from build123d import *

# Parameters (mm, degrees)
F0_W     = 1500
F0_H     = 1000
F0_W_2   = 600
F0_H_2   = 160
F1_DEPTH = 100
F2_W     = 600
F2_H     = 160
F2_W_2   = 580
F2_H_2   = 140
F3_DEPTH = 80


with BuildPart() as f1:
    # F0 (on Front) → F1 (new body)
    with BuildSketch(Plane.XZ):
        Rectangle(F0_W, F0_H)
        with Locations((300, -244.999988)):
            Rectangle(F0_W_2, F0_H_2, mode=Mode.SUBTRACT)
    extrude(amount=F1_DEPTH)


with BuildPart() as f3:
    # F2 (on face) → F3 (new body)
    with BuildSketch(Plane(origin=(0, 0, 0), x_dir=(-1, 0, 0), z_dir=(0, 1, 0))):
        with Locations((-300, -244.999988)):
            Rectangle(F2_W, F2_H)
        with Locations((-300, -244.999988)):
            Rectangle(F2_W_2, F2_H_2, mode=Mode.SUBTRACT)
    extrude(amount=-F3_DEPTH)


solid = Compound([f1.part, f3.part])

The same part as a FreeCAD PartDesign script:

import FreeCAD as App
import Part
import Sketcher
from FreeCAD import Vector
Q = App.Units.Quantity


def add_polygon(sketch, points):
    """Adds a closed chain of lines whose ends are joined by coincident constraints."""
    first, n = sketch.GeometryCount, len(points)
    for a, b in zip(points, points[1:] + points[:1]):
        sketch.addGeometry(Part.LineSegment(App.Vector(*a, 0), App.Vector(*b, 0)), False)
    for i in range(n):
        sketch.addConstraint(Sketcher.Constraint("Coincident", first + i, 2, first + (i + 1) % n, 1))

doc = App.newDocument("Part")
body = doc.addObject("PartDesign::Body", "Body")

sketch1 = doc.addObject("Sketcher::SketchObject", "Sketch")
body.addObject(sketch1)
sketch1.AttachmentSupport = (doc.XZ_Plane, [""])
sketch1.MapMode = "FlatFace"
add_polygon(sketch1, [(-750, 500), (-750, -500), (750, -500), (750, 500)])
add_polygon(sketch1, [(600, -325), (0, -325), (0, -165), (600, -165)])
sketch1.addConstraint([
    Sketcher.Constraint("Vertical", 0),
    Sketcher.Constraint("Horizontal", 1),
    Sketcher.Constraint("Vertical", 2),
    Sketcher.Constraint("Horizontal", 3),
    Sketcher.Constraint("Horizontal", 4),
    Sketcher.Constraint("Vertical", 5),
    Sketcher.Constraint("Horizontal", 6),
    Sketcher.Constraint("Vertical", 7),
    Sketcher.Constraint("Symmetric", 0, 2, 2, 2, -1, 1),
    Sketcher.Constraint("PointOnObject", 4, 2, -2),
    Sketcher.Constraint("DistanceX", 1, 1, 1, 2, Q("1500 mm")),
    Sketcher.Constraint("DistanceX", 4, 2, 4, 1, Q("600 mm")),
    Sketcher.Constraint("DistanceY", 0, 2, 0, 1, Q("1000 mm")),
    Sketcher.Constraint("DistanceY", 5, 1, 5, 2, Q("160 mm")),
    Sketcher.Constraint("DistanceY", 5, 2, -1, 1, Q("164.999988 mm")),
])
pad1 = doc.addObject("PartDesign::Pad", "Pad")
body.addObject(pad1)
pad1.Profile = sketch1
pad1.Length = 100
body2 = doc.addObject("PartDesign::Body", "Body001")

sketch2 = doc.addObject("Sketcher::SketchObject", "Sketch001")
body2.addObject(sketch2)
sketch2.AttachmentSupport = (doc.getObject("XZ_Plane001"), [""])
sketch2.MapMode = "FlatFace"
add_polygon(sketch2, [(600, -165), (600, -325), (0, -325), (0, -165)])
add_polygon(sketch2, [(10, -315), (590, -315), (590, -175), (10, -175)])
sketch2.addConstraint([
    Sketcher.Constraint("Vertical", 0),
    Sketcher.Constraint("Horizontal", 1),
    Sketcher.Constraint("Vertical", 2),
    Sketcher.Constraint("Horizontal", 3),
    Sketcher.Constraint("Horizontal", 4),
    Sketcher.Constraint("Vertical", 5),
    Sketcher.Constraint("Horizontal", 6),
    Sketcher.Constraint("Vertical", 7),
    Sketcher.Constraint("PointOnObject", 1, 2, -2),
    Sketcher.Constraint("DistanceX", 1, 2, 1, 1, Q("600 mm")),
    Sketcher.Constraint("DistanceX", 4, 1, 4, 2, Q("580 mm")),
    Sketcher.Constraint("DistanceY", 0, 2, 0, 1, Q("160 mm")),
    Sketcher.Constraint("DistanceY", 5, 1, 5, 2, Q("140 mm")),
    Sketcher.Constraint("DistanceX", -1, 1, 4, 2, Q("590 mm")),
    Sketcher.Constraint("DistanceY", 0, 2, 4, 2, Q("10 mm")),
    Sketcher.Constraint("DistanceY", 2, 2, -1, 1, Q("164.999988 mm")),
])
pad2 = doc.addObject("PartDesign::Pad", "Pad001")
body2.addObject(pad2)
pad2.Profile = sketch2
pad2.Length = 80

doc.recompute()
